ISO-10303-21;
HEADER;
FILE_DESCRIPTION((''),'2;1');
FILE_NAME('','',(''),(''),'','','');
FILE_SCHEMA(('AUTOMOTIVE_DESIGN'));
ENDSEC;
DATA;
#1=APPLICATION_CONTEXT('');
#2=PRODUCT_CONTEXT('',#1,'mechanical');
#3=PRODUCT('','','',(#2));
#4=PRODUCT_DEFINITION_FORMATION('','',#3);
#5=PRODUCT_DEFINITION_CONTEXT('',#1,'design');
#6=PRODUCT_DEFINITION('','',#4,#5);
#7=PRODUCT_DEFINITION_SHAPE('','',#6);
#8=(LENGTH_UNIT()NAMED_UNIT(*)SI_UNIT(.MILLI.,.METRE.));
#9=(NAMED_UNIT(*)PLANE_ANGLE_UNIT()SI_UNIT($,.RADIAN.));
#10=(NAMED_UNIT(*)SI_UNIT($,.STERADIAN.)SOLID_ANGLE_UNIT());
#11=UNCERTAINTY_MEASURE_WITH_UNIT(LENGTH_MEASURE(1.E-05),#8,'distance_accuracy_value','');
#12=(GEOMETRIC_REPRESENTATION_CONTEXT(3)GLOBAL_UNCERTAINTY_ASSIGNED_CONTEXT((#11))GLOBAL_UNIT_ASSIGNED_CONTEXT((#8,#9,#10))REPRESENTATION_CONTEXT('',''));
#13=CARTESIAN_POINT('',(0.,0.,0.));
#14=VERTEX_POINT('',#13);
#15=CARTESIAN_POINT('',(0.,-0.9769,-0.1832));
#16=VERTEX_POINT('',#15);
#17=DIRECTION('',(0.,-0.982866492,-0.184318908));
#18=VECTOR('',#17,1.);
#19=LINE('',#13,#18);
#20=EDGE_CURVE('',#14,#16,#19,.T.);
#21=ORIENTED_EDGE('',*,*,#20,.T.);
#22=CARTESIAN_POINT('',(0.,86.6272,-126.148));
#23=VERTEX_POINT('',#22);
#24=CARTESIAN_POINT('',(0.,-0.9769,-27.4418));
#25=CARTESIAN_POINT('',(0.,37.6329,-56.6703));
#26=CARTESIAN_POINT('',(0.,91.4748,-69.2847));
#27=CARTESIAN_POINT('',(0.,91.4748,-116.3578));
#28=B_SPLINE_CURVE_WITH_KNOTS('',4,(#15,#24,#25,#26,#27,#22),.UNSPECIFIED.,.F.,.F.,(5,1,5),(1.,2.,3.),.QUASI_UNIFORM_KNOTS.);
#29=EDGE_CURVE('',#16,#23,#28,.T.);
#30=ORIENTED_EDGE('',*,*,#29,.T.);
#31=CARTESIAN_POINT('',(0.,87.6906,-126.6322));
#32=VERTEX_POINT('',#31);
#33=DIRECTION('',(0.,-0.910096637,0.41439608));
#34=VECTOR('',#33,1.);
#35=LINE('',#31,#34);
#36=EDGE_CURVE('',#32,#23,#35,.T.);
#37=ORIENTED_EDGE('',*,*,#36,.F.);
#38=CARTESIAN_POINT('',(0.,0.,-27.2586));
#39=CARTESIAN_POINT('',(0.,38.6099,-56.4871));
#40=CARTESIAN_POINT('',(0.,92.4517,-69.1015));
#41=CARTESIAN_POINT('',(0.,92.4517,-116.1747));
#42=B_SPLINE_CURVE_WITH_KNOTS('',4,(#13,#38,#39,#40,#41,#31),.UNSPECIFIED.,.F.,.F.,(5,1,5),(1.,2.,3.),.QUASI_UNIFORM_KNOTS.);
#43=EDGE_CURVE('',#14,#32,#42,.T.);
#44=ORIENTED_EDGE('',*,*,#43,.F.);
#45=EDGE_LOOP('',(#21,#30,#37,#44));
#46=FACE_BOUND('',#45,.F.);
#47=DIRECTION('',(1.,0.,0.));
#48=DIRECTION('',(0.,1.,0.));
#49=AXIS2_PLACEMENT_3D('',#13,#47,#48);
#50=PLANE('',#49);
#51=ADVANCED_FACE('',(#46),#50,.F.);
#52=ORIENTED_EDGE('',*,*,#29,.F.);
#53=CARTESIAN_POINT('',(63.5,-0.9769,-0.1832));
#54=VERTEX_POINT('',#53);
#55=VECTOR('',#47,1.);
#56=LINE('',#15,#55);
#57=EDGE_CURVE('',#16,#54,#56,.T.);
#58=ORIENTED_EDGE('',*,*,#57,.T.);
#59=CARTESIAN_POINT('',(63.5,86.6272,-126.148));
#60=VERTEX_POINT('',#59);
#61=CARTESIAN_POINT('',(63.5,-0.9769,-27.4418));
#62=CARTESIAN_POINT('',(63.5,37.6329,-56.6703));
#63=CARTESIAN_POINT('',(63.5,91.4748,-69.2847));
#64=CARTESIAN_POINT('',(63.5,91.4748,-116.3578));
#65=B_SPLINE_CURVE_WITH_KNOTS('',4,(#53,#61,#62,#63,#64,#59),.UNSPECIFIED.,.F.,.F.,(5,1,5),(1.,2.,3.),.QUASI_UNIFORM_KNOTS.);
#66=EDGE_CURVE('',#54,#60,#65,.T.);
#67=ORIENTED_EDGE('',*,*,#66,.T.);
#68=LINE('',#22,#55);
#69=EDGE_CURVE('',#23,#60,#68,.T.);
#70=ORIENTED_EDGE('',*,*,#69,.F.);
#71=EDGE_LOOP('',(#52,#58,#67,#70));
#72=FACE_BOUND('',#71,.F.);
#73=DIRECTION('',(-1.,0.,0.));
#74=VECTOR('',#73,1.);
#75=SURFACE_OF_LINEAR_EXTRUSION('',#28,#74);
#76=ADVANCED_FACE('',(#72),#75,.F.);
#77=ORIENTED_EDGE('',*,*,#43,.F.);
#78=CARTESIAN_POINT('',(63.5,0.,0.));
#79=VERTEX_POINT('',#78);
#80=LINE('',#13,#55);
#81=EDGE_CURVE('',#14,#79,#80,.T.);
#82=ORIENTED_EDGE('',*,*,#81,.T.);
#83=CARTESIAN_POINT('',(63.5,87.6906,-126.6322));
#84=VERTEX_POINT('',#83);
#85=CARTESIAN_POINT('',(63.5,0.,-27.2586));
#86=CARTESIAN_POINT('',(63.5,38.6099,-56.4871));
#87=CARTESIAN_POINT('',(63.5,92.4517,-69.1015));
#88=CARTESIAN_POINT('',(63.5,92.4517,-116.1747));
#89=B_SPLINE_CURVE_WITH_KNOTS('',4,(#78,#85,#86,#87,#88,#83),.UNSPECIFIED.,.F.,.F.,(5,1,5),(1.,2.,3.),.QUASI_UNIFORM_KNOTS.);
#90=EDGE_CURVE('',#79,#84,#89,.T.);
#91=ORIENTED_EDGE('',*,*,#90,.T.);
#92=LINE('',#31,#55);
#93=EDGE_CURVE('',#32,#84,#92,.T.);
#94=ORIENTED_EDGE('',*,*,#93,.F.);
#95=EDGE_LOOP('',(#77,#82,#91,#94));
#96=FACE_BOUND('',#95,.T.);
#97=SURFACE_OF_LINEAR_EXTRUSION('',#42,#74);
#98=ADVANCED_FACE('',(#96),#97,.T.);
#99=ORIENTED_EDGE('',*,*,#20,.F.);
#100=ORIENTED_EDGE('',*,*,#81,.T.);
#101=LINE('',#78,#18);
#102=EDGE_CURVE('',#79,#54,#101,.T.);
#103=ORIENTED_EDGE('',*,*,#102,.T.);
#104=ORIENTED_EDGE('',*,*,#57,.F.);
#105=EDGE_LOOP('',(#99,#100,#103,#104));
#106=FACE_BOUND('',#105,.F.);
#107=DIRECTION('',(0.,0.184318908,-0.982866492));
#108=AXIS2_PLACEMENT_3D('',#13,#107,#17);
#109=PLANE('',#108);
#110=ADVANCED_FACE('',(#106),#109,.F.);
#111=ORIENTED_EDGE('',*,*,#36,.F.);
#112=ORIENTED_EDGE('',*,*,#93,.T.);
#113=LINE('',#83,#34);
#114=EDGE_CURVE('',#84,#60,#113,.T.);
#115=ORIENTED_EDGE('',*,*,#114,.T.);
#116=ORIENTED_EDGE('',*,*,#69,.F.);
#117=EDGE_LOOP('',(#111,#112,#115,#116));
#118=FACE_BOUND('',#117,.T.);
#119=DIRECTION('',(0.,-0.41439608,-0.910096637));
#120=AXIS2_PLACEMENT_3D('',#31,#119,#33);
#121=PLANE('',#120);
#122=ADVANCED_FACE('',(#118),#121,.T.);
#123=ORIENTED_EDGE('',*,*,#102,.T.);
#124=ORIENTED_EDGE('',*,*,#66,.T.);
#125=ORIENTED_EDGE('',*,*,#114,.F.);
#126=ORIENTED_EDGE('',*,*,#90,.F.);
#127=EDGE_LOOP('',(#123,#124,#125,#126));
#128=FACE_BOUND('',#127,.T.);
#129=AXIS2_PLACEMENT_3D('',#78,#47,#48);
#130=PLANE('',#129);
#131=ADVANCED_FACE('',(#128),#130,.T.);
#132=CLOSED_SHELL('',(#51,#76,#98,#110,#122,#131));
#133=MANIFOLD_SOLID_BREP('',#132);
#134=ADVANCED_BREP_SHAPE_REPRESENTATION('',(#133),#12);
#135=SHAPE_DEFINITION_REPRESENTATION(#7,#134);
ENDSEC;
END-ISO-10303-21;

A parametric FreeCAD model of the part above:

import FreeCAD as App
import Part
import Sketcher

V = App.Vector

doc = App.newDocument("Part")
params = doc.addObject("Spreadsheet::Sheet", "Params")
for row, (alias, value) in enumerate([
    ("pad1_length", "2.5 in"),
], start=1):
    params.set(f"A{row}", alias)
    params.set(f"B{row}", "=" + value)
    params.setAlias(f"B{row}", alias)

body = doc.addObject("PartDesign::Body", "Body")

sketch1 = body.newObject("Sketcher::SketchObject", "Sketch")
sketch1.AttachmentSupport = (doc.getObject("YZ_Plane"), [""])
sketch1.MapMode = "FlatFace"
sketch1.addGeometry([
    Part.BSplineCurve([V(0, 0, 0), V(0, -27.2586, 0), V(38.6099, -56.4871, 0), V(92.4517, -69.1015, 0), V(92.4517, -116.1747, 0), V(87.6906, -126.6322, 0)], [5, 1, 5], [1, 2, 3], False, 4, [1, 1, 1, 1, 1, 1], False),
    Part.LineSegment(V(0, 0, 0), V(-0.9769, -0.1832, 0)),
    Part.BSplineCurve([V(-0.9769, -0.1832, 0), V(-0.9769, -27.4418, 0), V(37.6329, -56.6703, 0), V(91.4748, -69.2847, 0), V(91.4748, -116.3578, 0), V(86.6272, -126.148, 0)], [5, 1, 5], [1, 2, 3], False, 4, [1, 1, 1, 1, 1, 1], False),
    Part.LineSegment(V(86.6272, -126.148, 0), V(87.6906, -126.6322, 0)),
], False)
sketch1.addConstraint([
    Sketcher.Constraint("Block", 0),
    Sketcher.Constraint("Block", 2),
    Sketcher.Constraint("Coincident", 0, 1, 1, 1),
    Sketcher.Constraint("Coincident", 1, 2, 2, 1),
    Sketcher.Constraint("Coincident", 2, 2, 3, 1),
    Sketcher.Constraint("Coincident", 3, 2, 0, 2),
])
pad1 = body.newObject("PartDesign::Pad", "Pad")
pad1.Profile = sketch1
pad1.setExpression("Length", "Params.pad1_length")

doc.recompute()
